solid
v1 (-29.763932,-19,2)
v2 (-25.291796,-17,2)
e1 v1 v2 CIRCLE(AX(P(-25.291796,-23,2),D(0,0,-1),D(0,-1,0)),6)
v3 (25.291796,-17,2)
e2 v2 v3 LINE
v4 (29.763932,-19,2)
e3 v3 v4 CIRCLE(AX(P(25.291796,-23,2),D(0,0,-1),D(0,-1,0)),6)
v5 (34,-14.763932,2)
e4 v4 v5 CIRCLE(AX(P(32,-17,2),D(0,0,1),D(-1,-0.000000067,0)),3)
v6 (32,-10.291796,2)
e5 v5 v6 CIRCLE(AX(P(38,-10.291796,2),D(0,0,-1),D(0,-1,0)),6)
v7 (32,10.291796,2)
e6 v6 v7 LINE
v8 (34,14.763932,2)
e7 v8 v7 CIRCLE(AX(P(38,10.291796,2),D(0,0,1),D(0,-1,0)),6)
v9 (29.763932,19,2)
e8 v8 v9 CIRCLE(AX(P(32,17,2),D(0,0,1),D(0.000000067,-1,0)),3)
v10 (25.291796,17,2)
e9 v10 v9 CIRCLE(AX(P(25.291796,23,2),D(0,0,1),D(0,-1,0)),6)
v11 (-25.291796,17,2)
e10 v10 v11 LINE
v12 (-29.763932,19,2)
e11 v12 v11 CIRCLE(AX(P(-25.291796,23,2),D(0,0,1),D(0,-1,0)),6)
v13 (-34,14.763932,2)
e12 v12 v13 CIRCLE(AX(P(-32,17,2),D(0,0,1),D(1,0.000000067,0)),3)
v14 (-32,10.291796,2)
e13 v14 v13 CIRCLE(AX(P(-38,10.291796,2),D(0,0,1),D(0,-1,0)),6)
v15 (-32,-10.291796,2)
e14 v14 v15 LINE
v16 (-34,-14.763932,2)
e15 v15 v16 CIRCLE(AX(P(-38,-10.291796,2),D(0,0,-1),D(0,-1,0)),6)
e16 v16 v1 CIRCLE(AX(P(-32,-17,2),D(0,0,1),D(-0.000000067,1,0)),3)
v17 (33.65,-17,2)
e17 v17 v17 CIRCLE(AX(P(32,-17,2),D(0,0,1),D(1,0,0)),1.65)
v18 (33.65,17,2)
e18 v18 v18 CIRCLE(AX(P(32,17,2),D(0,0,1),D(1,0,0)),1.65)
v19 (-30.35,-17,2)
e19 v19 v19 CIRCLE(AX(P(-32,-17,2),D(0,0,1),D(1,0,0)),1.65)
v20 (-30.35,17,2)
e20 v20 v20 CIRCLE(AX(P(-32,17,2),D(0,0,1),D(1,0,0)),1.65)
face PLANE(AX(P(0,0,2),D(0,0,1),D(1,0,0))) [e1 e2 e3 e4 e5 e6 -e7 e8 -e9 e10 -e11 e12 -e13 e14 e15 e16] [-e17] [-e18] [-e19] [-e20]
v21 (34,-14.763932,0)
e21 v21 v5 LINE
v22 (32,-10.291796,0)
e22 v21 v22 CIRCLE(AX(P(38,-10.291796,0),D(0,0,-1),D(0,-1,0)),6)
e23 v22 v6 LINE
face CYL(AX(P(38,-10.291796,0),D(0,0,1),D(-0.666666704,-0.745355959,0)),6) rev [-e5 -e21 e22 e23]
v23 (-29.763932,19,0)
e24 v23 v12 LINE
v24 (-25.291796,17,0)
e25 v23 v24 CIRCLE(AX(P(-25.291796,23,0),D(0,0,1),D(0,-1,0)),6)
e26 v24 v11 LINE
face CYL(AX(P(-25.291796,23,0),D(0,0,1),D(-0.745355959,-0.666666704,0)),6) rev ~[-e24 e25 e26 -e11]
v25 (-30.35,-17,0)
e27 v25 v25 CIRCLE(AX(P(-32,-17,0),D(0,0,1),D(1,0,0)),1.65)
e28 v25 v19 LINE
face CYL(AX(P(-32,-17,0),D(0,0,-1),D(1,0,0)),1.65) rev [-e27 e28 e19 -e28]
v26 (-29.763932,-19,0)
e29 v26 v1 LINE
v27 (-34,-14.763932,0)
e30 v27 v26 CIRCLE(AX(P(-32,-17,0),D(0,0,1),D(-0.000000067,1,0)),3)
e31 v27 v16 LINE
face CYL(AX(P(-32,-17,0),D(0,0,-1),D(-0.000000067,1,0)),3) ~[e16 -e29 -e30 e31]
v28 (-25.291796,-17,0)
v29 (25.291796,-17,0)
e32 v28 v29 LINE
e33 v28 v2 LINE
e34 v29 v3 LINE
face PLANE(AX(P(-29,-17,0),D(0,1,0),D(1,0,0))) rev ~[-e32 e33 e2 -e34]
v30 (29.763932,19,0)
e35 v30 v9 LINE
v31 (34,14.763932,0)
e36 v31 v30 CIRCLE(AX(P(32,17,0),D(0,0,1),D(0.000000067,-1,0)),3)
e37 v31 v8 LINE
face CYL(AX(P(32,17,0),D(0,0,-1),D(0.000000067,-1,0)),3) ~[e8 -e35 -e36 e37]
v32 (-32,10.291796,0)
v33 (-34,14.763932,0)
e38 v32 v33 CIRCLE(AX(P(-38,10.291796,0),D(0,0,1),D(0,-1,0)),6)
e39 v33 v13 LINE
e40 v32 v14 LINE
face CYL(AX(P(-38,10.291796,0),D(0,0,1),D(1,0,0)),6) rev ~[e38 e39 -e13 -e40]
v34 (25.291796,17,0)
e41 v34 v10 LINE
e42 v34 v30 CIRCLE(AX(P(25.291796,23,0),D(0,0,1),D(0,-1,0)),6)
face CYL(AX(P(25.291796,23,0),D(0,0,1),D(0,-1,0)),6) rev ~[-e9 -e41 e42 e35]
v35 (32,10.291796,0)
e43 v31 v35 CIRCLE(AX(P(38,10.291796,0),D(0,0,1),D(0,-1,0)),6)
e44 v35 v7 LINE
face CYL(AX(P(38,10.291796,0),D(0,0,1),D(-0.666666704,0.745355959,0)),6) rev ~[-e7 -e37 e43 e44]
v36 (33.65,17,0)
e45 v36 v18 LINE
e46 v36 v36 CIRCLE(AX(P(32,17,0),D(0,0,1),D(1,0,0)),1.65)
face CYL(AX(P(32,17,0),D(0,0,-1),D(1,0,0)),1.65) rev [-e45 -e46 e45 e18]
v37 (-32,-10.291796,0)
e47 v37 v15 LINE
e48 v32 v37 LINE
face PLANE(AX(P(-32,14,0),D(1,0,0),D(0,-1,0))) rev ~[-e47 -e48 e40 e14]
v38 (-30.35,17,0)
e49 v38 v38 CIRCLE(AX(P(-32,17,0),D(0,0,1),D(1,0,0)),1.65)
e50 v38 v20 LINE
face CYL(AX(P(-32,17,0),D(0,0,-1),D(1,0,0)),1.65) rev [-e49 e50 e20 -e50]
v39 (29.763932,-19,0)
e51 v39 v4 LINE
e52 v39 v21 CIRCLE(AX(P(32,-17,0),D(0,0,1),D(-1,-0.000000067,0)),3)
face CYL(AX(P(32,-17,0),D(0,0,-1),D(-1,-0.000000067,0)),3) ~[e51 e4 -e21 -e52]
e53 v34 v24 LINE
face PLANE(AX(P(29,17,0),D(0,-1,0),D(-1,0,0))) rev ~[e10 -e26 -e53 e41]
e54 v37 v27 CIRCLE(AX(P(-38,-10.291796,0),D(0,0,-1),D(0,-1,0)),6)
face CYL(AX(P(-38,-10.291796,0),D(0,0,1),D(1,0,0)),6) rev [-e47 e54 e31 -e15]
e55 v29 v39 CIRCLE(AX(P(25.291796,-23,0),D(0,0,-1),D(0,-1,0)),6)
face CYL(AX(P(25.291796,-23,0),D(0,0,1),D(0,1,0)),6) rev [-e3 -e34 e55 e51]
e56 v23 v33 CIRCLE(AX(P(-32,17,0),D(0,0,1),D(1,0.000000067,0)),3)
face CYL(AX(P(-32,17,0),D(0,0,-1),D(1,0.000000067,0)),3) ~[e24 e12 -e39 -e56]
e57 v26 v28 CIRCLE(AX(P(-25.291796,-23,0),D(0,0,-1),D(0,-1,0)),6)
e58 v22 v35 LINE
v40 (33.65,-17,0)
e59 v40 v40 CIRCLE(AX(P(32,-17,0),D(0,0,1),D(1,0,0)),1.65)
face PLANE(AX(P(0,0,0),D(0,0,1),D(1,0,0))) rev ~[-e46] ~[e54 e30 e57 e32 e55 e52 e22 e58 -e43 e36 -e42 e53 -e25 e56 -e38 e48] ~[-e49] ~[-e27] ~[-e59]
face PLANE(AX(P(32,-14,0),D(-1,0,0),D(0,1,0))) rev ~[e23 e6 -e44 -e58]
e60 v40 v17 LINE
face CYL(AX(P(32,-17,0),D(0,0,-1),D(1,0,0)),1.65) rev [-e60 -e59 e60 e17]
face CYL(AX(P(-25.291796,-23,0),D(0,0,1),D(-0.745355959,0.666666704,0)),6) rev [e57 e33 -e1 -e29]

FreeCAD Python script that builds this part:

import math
import FreeCAD as App
import Part
import Sketcher

V = App.Vector
Q = App.Units.Quantity


def edges_at(feature, points):
    """Names of the edges that pass closest to the given points."""
    edges = feature.Shape.Edges
    near = lambda p: min(range(len(edges)), key=lambda i: edges[i].distToShape(Part.Vertex(*p))[0])
    return sorted({f"Edge{near(p) + 1}" for p in points})

doc = App.newDocument("Part")
body = doc.addObject("PartDesign::Body", "Body")

# Sketch on XY plane
sketch1 = body.newObject("Sketcher::SketchObject", "Sketch")
sketch1.AttachmentSupport = (doc.getObject("XY_Plane"), [""])
sketch1.MapMode = "FlatFace"
sketch1.addGeometry(Part.LineSegment(V(-32, 14, 0), V(-32, -14, 0)), False)
sketch1.addGeometry(Part.ArcOfCircle(Part.Circle(V(-32, -17, 0), V(0, 0, 1), 3), math.radians(90), math.radians(360)), False)
sketch1.addGeometry(Part.LineSegment(V(-29, -17, 0), V(29, -17, 0)), False)
sketch1.addGeometry(Part.ArcOfCircle(Part.Circle(V(32, -17, 0), V(0, 0, 1), 3), math.radians(-180), math.radians(90)), False)
sketch1.addGeometry(Part.LineSegment(V(32, -14, 0), V(32, 14, 0)), False)
sketch1.addGeometry(Part.ArcOfCircle(Part.Circle(V(32, 17, 0), V(0, 0, 1), 3), math.radians(-90), math.radians(180)), False)
sketch1.addGeometry(Part.LineSegment(V(29, 17, 0), V(-29, 17, 0)), False)
sketch1.addGeometry(Part.ArcOfCircle(Part.Circle(V(-32, 17, 0), V(0, 0, 1), 3), math.radians(0), math.radians(270)), False)
sketch1.addGeometry(Part.Circle(V(-32, -17, 0), V(0, 0, 1), 1.6), False)
sketch1.addGeometry(Part.Circle(V(32, -17, 0), V(0, 0, 1), 1.6), False)
sketch1.addGeometry(Part.Circle(V(-32, 17, 0), V(0, 0, 1), 1.6), False)
sketch1.addGeometry(Part.Circle(V(32, 17, 0), V(0, 0, 1), 1.6), False)
sketch1.addConstraint(Sketcher.Constraint("Coincident", 0, 2, 1, 1))
sketch1.addConstraint(Sketcher.Constraint("Coincident", 1, 2, 2, 1))
sketch1.addConstraint(Sketcher.Constraint("Coincident", 2, 2, 3, 1))
sketch1.addConstraint(Sketcher.Constraint("Coincident", 3, 2, 4, 1))
sketch1.addConstraint(Sketcher.Constraint("Coincident", 4, 2, 5, 1))
sketch1.addConstraint(Sketcher.Constraint("Coincident", 5, 2, 6, 1))
sketch1.addConstraint(Sketcher.Constraint("Coincident", 6, 2, 7, 1))
sketch1.addConstraint(Sketcher.Constraint("Coincident", 7, 2, 0, 1))
sketch1.addConstraint(Sketcher.Constraint("Vertical", 0))
sketch1.addConstraint(Sketcher.Constraint("Horizontal", 2))
sketch1.addConstraint(Sketcher.Constraint("Vertical", 4))
sketch1.addConstraint(Sketcher.Constraint("Horizontal", 6))
sketch1.addConstraint(Sketcher.Constraint("Coincident", 8, 3, 1, 3))
sketch1.addConstraint(Sketcher.Constraint("Coincident", 9, 3, 3, 3))
sketch1.addConstraint(Sketcher.Constraint("Coincident", 10, 3, 7, 3))
sketch1.addConstraint(Sketcher.Constraint("Coincident", 11, 3, 5, 3))
sketch1.addConstraint(Sketcher.Constraint("Equal", 1, 3))
sketch1.addConstraint(Sketcher.Constraint("Equal", 3, 5))
sketch1.addConstraint(Sketcher.Constraint("Equal", 5, 7))
sketch1.addConstraint(Sketcher.Constraint("Equal", 8, 9))
sketch1.addConstraint(Sketcher.Constraint("Equal", 9, 10))
sketch1.addConstraint(Sketcher.Constraint("Equal", 10, 11))
sketch1.addConstraint(Sketcher.Constraint("Symmetric", 1, 3, 5, 3, -1, 1))
sketch1.addConstraint(Sketcher.Constraint("Symmetric", 3, 3, 7, 3, -1, 1))
sketch1.addConstraint(Sketcher.Constraint("Symmetric", 1, 3, 3, 3, -2))
sketch1.addConstraint(Sketcher.Constraint("Horizontal", 9, 3, 1, 2))
sketch1.addConstraint(Sketcher.Constraint("Horizontal", 11, 3, 5, 2))
sketch1.addConstraint(Sketcher.Constraint("Vertical", 10, 3, 0, 2))
sketch1.addConstraint(Sketcher.Constraint("Vertical", 11, 3, 3, 2))
sketch1.addConstraint(Sketcher.Constraint("Radius", 1, Q("3 mm")))
sketch1.addConstraint(Sketcher.Constraint("Diameter", 8, Q("3.3 mm")))
sketch1.addConstraint(Sketcher.Constraint("DistanceX", 2, 1, 2, 2, Q("58 mm")))
sketch1.addConstraint(Sketcher.Constraint("DistanceY", 0, 2, 0, 1, Q("28 mm")))
pad1 = body.newObject("PartDesign::Pad", "Pad")
pad1.Profile = sketch1
pad1.Length = 2
doc.recompute()

fillet = body.newObject("PartDesign::Fillet", "Fillet")
fillet.Base = (pad1, edges_at(pad1, [
    (-29, -17, 1),
    (29, -17, 1),
    (32, -14, 1),
    (32, 14, 1),
    (29, 17, 1),
    (-29, 17, 1),
    (-32, 14, 1),
    (-32, -14, 1),
]))
fillet.Radius = 6

doc.recompute()
